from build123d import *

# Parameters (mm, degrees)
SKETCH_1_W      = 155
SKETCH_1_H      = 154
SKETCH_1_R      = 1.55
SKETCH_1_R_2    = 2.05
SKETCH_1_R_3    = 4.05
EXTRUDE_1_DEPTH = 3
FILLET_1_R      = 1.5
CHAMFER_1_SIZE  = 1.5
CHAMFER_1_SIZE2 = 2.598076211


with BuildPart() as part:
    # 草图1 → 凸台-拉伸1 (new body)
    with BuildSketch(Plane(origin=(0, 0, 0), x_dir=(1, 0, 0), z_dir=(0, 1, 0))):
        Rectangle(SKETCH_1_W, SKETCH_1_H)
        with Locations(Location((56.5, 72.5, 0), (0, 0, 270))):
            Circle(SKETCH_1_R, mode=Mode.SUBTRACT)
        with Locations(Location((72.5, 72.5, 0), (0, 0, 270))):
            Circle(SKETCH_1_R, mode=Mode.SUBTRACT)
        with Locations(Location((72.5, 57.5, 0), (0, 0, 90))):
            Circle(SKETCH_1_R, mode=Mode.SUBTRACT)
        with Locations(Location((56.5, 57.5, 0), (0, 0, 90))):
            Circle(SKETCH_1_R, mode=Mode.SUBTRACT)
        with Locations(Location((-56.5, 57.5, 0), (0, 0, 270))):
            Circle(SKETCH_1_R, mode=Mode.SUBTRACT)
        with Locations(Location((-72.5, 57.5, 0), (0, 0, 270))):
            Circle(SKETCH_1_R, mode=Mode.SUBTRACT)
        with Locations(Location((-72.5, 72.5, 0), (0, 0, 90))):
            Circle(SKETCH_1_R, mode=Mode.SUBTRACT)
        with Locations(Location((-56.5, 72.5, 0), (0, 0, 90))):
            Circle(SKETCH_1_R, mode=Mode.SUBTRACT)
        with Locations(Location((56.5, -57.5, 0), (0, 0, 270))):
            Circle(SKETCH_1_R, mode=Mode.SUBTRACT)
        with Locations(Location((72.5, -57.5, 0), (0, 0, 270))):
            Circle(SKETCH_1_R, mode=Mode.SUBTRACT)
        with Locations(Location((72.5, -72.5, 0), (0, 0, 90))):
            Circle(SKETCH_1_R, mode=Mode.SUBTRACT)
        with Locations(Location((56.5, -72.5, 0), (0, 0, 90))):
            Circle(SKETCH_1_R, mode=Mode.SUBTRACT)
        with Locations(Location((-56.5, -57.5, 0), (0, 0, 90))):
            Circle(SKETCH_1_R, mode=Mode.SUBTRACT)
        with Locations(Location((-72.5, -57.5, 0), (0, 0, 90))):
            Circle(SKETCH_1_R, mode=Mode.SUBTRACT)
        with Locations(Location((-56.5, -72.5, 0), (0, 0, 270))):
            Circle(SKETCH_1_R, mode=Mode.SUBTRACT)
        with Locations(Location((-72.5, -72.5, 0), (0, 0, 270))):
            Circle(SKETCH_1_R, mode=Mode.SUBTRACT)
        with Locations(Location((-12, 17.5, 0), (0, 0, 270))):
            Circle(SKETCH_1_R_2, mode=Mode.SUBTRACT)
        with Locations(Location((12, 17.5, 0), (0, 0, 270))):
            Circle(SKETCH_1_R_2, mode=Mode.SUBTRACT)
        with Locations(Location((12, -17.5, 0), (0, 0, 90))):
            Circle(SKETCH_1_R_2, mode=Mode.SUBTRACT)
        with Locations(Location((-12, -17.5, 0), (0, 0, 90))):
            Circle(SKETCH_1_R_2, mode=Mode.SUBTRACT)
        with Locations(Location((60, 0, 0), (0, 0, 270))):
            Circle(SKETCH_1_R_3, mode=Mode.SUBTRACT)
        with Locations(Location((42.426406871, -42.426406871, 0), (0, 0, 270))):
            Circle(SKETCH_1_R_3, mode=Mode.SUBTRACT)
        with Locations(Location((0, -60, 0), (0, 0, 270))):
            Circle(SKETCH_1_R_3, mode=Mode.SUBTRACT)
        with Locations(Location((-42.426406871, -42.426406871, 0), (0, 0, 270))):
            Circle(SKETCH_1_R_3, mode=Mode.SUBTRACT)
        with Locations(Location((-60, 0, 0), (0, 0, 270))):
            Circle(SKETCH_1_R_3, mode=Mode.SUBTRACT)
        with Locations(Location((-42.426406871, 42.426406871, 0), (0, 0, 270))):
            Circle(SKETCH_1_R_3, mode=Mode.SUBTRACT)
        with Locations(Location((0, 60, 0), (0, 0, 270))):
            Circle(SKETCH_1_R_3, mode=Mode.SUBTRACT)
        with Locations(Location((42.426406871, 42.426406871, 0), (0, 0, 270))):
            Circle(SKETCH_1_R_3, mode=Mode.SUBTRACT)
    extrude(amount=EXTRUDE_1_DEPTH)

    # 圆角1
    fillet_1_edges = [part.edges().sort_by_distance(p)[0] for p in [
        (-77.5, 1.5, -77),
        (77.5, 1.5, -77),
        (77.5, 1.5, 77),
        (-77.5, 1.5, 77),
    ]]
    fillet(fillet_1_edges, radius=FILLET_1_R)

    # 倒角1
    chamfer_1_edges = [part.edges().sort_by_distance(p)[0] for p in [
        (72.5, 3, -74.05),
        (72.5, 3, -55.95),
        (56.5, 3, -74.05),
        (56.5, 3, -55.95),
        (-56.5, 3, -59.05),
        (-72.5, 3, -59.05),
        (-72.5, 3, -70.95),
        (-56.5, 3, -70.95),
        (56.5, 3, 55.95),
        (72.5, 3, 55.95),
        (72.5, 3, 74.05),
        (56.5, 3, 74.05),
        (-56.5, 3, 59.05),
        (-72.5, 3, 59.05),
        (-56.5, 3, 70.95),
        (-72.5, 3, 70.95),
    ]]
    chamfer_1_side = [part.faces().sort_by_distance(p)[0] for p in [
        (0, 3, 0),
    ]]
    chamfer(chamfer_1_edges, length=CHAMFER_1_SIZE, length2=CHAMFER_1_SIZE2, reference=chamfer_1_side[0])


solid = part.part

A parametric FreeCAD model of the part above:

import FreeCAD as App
import Part
import Sketcher
from FreeCAD import Vector
Q = App.Units.Quantity


def edges_at(feature, points):
    """Names of the edges that pass closest to the given points."""
    edges = feature.Shape.Edges
    near = lambda p: min(range(len(edges)), key=lambda i: edges[i].distToShape(Part.Vertex(*p))[0])
    return sorted({f"Edge{near(p) + 1}" for p in points})

doc = App.newDocument("Part")
body = doc.addObject("PartDesign::Body", "Body")

sketch1 = body.newObject("Sketcher::SketchObject", "Sketch")
sketch1.AttachmentSupport = (doc.getObject("XZ_Plane"), [""])
sketch1.MapMode = "FlatFace"
sketch1.addGeometry([
    Part.LineSegment(Vector(-77.5, -77, 0), Vector(-77.5, 77, 0)),
    Part.LineSegment(Vector(-77.5, 77, 0), Vector(77.5, 77, 0)),
    Part.LineSegment(Vector(77.5, 77, 0), Vector(77.5, -77, 0)),
    Part.LineSegment(Vector(77.5, -77, 0), Vector(-77.5, -77, 0)),
    Part.Circle(Vector(-72.5, 72.5, 0), Vector(0, 0, 1), 1.6),
    Part.Circle(Vector(-56.5, 72.5, 0), Vector(0, 0, 1), 1.6),
    Part.Circle(Vector(-72.5, 57.5, 0), Vector(0, 0, 1), 1.6),
    Part.Circle(Vector(-56.5, 57.5, 0), Vector(0, 0, 1), 1.6),
    Part.Circle(Vector(-42.4, 42.4, 0), Vector(0, 0, 1), 4),
    Part.Circle(Vector(-12, 17.5, 0), Vector(0, 0, 1), 2),
    Part.Circle(Vector(0, 60, 0), Vector(0, 0, 1), 4),
    Part.Circle(Vector(56.5, 72.5, 0), Vector(0, 0, 1), 1.6),
    Part.Circle(Vector(72.5, 72.5, 0), Vector(0, 0, 1), 1.6),
    Part.Circle(Vector(56.5, 57.5, 0), Vector(0, 0, 1), 1.6),
    Part.Circle(Vector(72.5, 57.5, 0), Vector(0, 0, 1), 1.6),
    Part.Circle(Vector(42.4, 42.4, 0), Vector(0, 0, 1), 4),
    Part.Circle(Vector(12, 17.5, 0), Vector(0, 0, 1), 2),
    Part.Circle(Vector(-60, 0, 0), Vector(0, 0, 1), 4),
    Part.Circle(Vector(-12, -17.5, 0), Vector(0, 0, 1), 2),
    Part.Circle(Vector(-42.4, -42.4, 0), Vector(0, 0, 1), 4),
    Part.Circle(Vector(-72.5, -57.5, 0), Vector(0, 0, 1), 1.6),
    Part.Circle(Vector(-56.5, -57.5, 0), Vector(0, 0, 1), 1.6),
    Part.Circle(Vector(-72.5, -72.5, 0), Vector(0, 0, 1), 1.6),
    Part.Circle(Vector(-56.5, -72.5, 0), Vector(0, 0, 1), 1.6),
    Part.Circle(Vector(12, -17.5, 0), Vector(0, 0, 1), 2),
    Part.Circle(Vector(60, 0, 0), Vector(0, 0, 1), 4),
    Part.Circle(Vector(0, -60, 0), Vector(0, 0, 1), 4),
    Part.Circle(Vector(42.4, -42.4, 0), Vector(0, 0, 1), 4),
    Part.Circle(Vector(56.5, -57.5, 0), Vector(0, 0, 1), 1.6),
    Part.Circle(Vector(72.5, -57.5, 0), Vector(0, 0, 1), 1.6),
    Part.Circle(Vector(56.5, -72.5, 0), Vector(0, 0, 1), 1.6),
    Part.Circle(Vector(72.5, -72.5, 0), Vector(0, 0, 1), 1.6),
], False)
sketch1.addConstraint([
    Sketcher.Constraint("Coincident", 0, 2, 1, 1),
    Sketcher.Constraint("Coincident", 1, 2, 2, 1),
    Sketcher.Constraint("Coincident", 2, 2, 3, 1),
    Sketcher.Constraint("Coincident", 3, 2, 0, 1),
    Sketcher.Constraint("Vertical", 0),
    Sketcher.Constraint("Horizontal", 1),
    Sketcher.Constraint("Vertical", 2),
    Sketcher.Constraint("Horizontal", 3),
    Sketcher.Constraint("Equal", 4, 5),
    Sketcher.Constraint("Equal", 5, 6),
    Sketcher.Constraint("Equal", 6, 7),
    Sketcher.Constraint("Equal", 8, 10),
    Sketcher.Constraint("Equal", 7, 11),
    Sketcher.Constraint("Equal", 11, 12),
    Sketcher.Constraint("Equal", 12, 13),
    Sketcher.Constraint("Equal", 13, 14),
    Sketcher.Constraint("Equal", 10, 15),
    Sketcher.Constraint("Equal", 9, 16),
    Sketcher.Constraint("Equal", 15, 17),
    Sketcher.Constraint("Equal", 16, 18),
    Sketcher.Constraint("Equal", 17, 19),
    Sketcher.Constraint("Equal", 14, 20),
    Sketcher.Constraint("Equal", 20, 21),
    Sketcher.Constraint("Equal", 21, 22),
    Sketcher.Constraint("Equal", 22, 23),
    Sketcher.Constraint("Equal", 18, 24),
    Sketcher.Constraint("Equal", 19, 25),
    Sketcher.Constraint("Equal", 25, 26),
    Sketcher.Constraint("Equal", 26, 27),
    Sketcher.Constraint("Equal", 23, 28),
    Sketcher.Constraint("Equal", 28, 29),
    Sketcher.Constraint("Equal", 29, 30),
    Sketcher.Constraint("Equal", 30, 31),
    Sketcher.Constraint("Symmetric", 16, 3, 18, 3, -1, 1),
    Sketcher.Constraint("Symmetric", 15, 3, 19, 3, -1, 1),
    Sketcher.Constraint("Symmetric", 14, 3, 20, 3, -1, 1),
    Sketcher.Constraint("Symmetric", 13, 3, 21, 3, -1, 1),
    Sketcher.Constraint("Symmetric", 12, 3, 22, 3, -1, 1),
    Sketcher.Constraint("Symmetric", 11, 3, 23, 3, -1, 1),
    Sketcher.Constraint("Symmetric", 9, 3, 24, 3, -1, 1),
    Sketcher.Constraint("Symmetric", 17, 3, 25, 3, -1, 1),
    Sketcher.Constraint("Symmetric", 10, 3, 26, 3, -1, 1),
    Sketcher.Constraint("Symmetric", 8, 3, 27, 3, -1, 1),
    Sketcher.Constraint("Symmetric", 7, 3, 28, 3, -1, 1),
    Sketcher.Constraint("Symmetric", 6, 3, 29, 3, -1, 1),
    Sketcher.Constraint("Symmetric", 5, 3, 30, 3, -1, 1),
    Sketcher.Constraint("Symmetric", 4, 3, 31, 3, -1, 1),
    Sketcher.Constraint("Symmetric", 0, 2, 2, 2, -1, 1),
    Sketcher.Constraint("Symmetric", 5, 3, 11, 3, -2),
    Sketcher.Constraint("Symmetric", 4, 3, 12, 3, -2),
    Sketcher.Constraint("Symmetric", 7, 3, 13, 3, -2),
    Sketcher.Constraint("Symmetric", 6, 3, 14, 3, -2),
    Sketcher.Constraint("Symmetric", 8, 3, 15, 3, -2),
    Sketcher.Constraint("Symmetric", 9, 3, 16, 3, -2),
    Sketcher.Constraint("PointOnObject", 10, 3, -2),
    Sketcher.Constraint("PointOnObject", 17, 3, -1),
    Sketcher.Constraint("Horizontal", 4, 3, 5, 3),
    Sketcher.Constraint("Horizontal", 6, 3, 7, 3),
    Sketcher.Constraint("Vertical", 4, 3, 6, 3),
    Sketcher.Constraint("Vertical", 5, 3, 7, 3),
    Sketcher.Constraint("Diameter", 4, Q("3.1 mm")),
    Sketcher.Constraint("Diameter", 8, Q("8.1 mm")),
    Sketcher.Constraint("Diameter", 9, Q("4.1 mm")),
    Sketcher.Constraint("DistanceX", 1, 1, 1, 2, Q("155 mm")),
    Sketcher.Constraint("DistanceY", 0, 1, 0, 2, Q("154 mm")),
    Sketcher.Constraint("DistanceX", 9, 3, -1, 1, Q("12 mm")),
    Sketcher.Constraint("DistanceY", -1, 1, 10, 3, Q("60 mm")),
    Sketcher.Constraint("DistanceX", 17, 3, -1, 1, Q("60 mm")),
    Sketcher.Constraint("DistanceX", 4, 3, 5, 3, Q("16 mm")),
    Sketcher.Constraint("DistanceY", 6, 3, 4, 3, Q("15 mm")),
    Sketcher.Constraint("DistanceY", 9, 3, 7, 3, Q("40 mm")),
    Sketcher.Constraint("DistanceX", 5, 3, 11, 3, Q("113 mm")),
    Sketcher.Constraint("DistanceY", 18, 3, 9, 3, Q("35 mm")),
    Sketcher.Constraint("DistanceX", 8, 3, -1, 1, Q("42.426407 mm")),
    Sketcher.Constraint("DistanceY", -1, 1, 8, 3, Q("42.426407 mm")),
])
pad1 = body.newObject("PartDesign::Pad", "Pad")
pad1.Profile = sketch1
pad1.Length = 3
pad1.Reversed = True
doc.recompute()

fillet = body.newObject("PartDesign::Fillet", "Fillet")
fillet.Base = (pad1, edges_at(pad1, [
    (-77.5, 1.5, -77),
    (77.5, 1.5, -77),
    (77.5, 1.5, 77),
    (-77.5, 1.5, 77),
]))
fillet.Radius = 1.5
doc.recompute()

chamfer = body.newObject("PartDesign::Chamfer", "Chamfer")
chamfer.Base = (fillet, edges_at(fillet, [
    (72.5, 3, -74.05),
    (72.5, 3, -55.95),
    (56.5, 3, -74.05),
    (56.5, 3, -55.95),
    (-56.5, 3, -59.05),
    (-72.5, 3, -59.05),
    (-72.5, 3, -70.95),
    (-56.5, 3, -70.95),
    (56.5, 3, 55.95),
    (72.5, 3, 55.95),
    (72.5, 3, 74.05),
    (56.5, 3, 74.05),
    (-56.5, 3, 59.05),
    (-72.5, 3, 59.05),
    (-56.5, 3, 70.95),
    (-72.5, 3, 70.95),
]))
chamfer.ChamferType = "Two distances"
chamfer.Size = 1.5
chamfer.Size2 = 2.598076

doc.recompute()
